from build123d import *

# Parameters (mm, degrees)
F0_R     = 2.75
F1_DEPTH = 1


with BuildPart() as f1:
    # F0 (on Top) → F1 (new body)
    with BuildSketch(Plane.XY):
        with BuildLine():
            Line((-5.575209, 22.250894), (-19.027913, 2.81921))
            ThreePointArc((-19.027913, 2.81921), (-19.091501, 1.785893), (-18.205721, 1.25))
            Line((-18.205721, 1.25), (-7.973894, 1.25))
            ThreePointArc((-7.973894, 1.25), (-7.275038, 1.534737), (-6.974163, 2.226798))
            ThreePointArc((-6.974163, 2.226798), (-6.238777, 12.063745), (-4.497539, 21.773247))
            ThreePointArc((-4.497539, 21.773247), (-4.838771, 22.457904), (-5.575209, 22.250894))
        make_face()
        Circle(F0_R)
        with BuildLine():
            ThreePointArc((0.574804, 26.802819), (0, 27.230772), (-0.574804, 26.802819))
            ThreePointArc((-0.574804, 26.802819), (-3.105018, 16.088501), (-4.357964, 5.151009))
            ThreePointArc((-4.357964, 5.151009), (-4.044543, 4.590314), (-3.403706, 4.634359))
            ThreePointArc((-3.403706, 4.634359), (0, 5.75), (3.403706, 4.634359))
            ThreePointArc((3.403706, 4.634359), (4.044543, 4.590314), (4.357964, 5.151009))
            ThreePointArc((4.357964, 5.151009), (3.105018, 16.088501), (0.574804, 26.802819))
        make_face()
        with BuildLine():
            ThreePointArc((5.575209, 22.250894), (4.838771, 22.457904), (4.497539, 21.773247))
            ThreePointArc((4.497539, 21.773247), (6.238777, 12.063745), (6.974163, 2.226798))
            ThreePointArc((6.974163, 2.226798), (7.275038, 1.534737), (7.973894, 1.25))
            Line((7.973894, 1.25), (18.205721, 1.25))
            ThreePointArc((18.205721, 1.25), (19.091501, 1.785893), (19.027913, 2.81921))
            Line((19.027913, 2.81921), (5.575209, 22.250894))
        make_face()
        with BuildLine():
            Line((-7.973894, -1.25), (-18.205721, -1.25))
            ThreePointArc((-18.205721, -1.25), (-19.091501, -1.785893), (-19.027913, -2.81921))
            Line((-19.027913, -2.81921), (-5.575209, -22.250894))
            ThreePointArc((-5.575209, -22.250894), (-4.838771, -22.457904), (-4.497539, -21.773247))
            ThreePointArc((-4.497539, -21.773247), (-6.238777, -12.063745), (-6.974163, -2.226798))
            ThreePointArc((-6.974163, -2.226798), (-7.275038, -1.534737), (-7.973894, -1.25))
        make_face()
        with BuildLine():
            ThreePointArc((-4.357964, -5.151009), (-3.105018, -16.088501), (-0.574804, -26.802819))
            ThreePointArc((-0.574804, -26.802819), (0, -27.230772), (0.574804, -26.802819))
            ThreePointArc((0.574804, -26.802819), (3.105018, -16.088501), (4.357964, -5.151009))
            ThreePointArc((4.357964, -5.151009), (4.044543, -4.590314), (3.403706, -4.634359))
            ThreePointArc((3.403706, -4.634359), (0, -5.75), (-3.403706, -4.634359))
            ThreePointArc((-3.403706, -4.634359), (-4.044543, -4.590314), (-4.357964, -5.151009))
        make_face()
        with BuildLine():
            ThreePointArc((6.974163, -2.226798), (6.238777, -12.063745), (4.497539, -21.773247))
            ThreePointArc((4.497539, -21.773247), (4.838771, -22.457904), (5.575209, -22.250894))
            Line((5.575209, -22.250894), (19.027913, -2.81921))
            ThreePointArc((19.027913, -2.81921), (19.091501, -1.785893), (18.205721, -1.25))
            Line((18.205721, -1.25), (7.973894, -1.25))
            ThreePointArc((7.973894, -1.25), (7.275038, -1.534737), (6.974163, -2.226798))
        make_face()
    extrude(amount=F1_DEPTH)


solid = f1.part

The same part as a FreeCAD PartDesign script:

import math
import FreeCAD as App
import Part
import Sketcher

V = App.Vector

doc = App.newDocument("Part")
params = doc.addObject("Spreadsheet::Sheet", "Params")
for row, (alias, value) in enumerate([
    ("sketch1_radius", "0.999999 mm"),
    ("sketch1_radius2", "0.999999 mm"),
    ("sketch1_radius3", "0.999999 mm"),
    ("sketch1_radius4", "0.999999 mm"),
    ("sketch1_radius5", "0.999999 mm"),
    ("pad1_length", "1 mm"),
], start=1):
    params.set(f"A{row}", alias)
    params.set(f"B{row}", "=" + value)
    params.setAlias(f"B{row}", alias)

body = doc.addObject("PartDesign::Body", "Body")
body.AllowCompound = True

sketch1 = body.newObject("Sketcher::SketchObject", "Sketch")
sketch1.AttachmentSupport = (doc.getObject("XY_Plane"), [""])
sketch1.MapMode = "FlatFace"
sketch1.addGeometry(Part.LineSegment(V(-5.575209, 22.250894, 0), V(-19.027913, 2.81921, 0)), False)
sketch1.addGeometry(Part.ArcOfCircle(Part.Circle(V(-18.205722, 2.249999, 0), V(0, 0, 1), 0.999999), math.radians(145.304758), math.radians(270.000076)), False)
sketch1.addGeometry(Part.LineSegment(V(-18.205721, 1.25, 0), V(-7.973894, 1.25, 0)), False)
sketch1.addGeometry(Part.ArcOfCircle(Part.Circle(V(-7.973893, 2.249999, 0), V(0, 0, 1), 0.999999), math.radians(-90.000053), math.radians(-1.329455)), False)
sketch1.addGeometry(Part.ArcOfCircle(Part.Circle(V(88.972908, -0.000008, 0), V(0, 0, 1), 95.972908), math.radians(166.887207), math.radians(178.670479)), False)
sketch1.addGeometry(Part.ArcOfCircle(Part.Circle(V(-5.081894, 21.909369, 0), V(0, 0, 1), 0.6), math.radians(-13.112854), math.radians(145.304909)), False)
sketch1.addGeometry(Part.Circle(V(0, 0, 0), V(0, 0, 1), 2.75), False)
sketch1.addGeometry(Part.ArcOfCircle(Part.Circle(V(0, 26.630772, 0), V(0, 0, 1), 0.6), math.radians(16.663168), math.radians(163.336832)), False)
sketch1.addGeometry(Part.ArcOfCircle(Part.Circle(V(88.972811, 0, 0), V(0, 0, 1), 93.472811), math.radians(163.336843), math.radians(176.841)), False)
sketch1.addGeometry(Part.ArcOfCircle(Part.Circle(V(-3.758875, 5.117945, 0), V(0, 0, 1), 0.600001), math.radians(176.841028), math.radians(306.295376)), False)
sketch1.addGeometry(Part.ArcOfCircle(Part.Circle(V(0, 0.000001, 0), V(0, 0, 1), 5.749999), math.radians(53.704565), math.radians(126.295435)), False)
sketch1.addGeometry(Part.ArcOfCircle(Part.Circle(V(3.758875, 5.117945, 0), V(0, 0, 1), 0.600001), math.radians(-126.295376), math.radians(3.158972)), False)
sketch1.addGeometry(Part.ArcOfCircle(Part.Circle(V(-88.972811, 0, 0), V(0, 0, 1), 93.472811), math.radians(3.159), math.radians(16.663157)), False)
sketch1.addGeometry(Part.ArcOfCircle(Part.Circle(V(5.081894, 21.909369, 0), V(0, 0, 1), 0.6), math.radians(34.695091), math.radians(193.112854)), False)
sketch1.addGeometry(Part.ArcOfCircle(Part.Circle(V(-88.972908, -0.000008, 0), V(0, 0, 1), 95.972908), math.radians(1.329521), math.radians(13.112793)), False)
sketch1.addGeometry(Part.ArcOfCircle(Part.Circle(V(7.973893, 2.249999, 0), V(0, 0, 1), 0.999999), math.radians(-178.670545), math.radians(-89.999947)), False)
sketch1.addGeometry(Part.LineSegment(V(7.973894, 1.25, 0), V(18.205721, 1.25, 0)), False)
sketch1.addGeometry(Part.ArcOfCircle(Part.Circle(V(18.205722, 2.249999, 0), V(0, 0, 1), 0.999999), math.radians(-90.000076), math.radians(34.695242)), False)
sketch1.addGeometry(Part.LineSegment(V(19.027913, 2.81921, 0), V(5.575209, 22.250894, 0)), False)
sketch1.addGeometry(Part.LineSegment(V(-7.973894, -1.25, 0), V(-18.205721, -1.25, 0)), False)
sketch1.addGeometry(Part.ArcOfCircle(Part.Circle(V(-18.205722, -2.249999, 0), V(0, 0, 1), 0.999999), math.radians(89.999924), math.radians(214.695242)), False)
sketch1.addGeometry(Part.LineSegment(V(-19.027913, -2.81921, 0), V(-5.575209, -22.250894, 0)), False)
sketch1.addGeometry(Part.ArcOfCircle(Part.Circle(V(-5.081894, -21.909369, 0), V(0, 0, 1), 0.6), math.radians(-145.304909), math.radians(13.112854)), False)
sketch1.addGeometry(Part.ArcOfCircle(Part.Circle(V(88.972908, 0.000008, 0), V(0, 0, 1), 95.972908), math.radians(-178.670479), math.radians(-166.887207)), False)
sketch1.addGeometry(Part.ArcOfCircle(Part.Circle(V(-7.973893, -2.249999, 0), V(0, 0, 1), 0.999999), math.radians(1.329455), math.radians(90.000053)), False)
sketch1.addGeometry(Part.ArcOfCircle(Part.Circle(V(88.972811, 0, 0), V(0, 0, 1), 93.472811), math.radians(-176.841), math.radians(-163.336843)), False)
sketch1.addGeometry(Part.ArcOfCircle(Part.Circle(V(0, -26.630772, 0), V(0, 0, 1), 0.6), math.radians(-163.336832), math.radians(-16.663168)), False)
sketch1.addGeometry(Part.ArcOfCircle(Part.Circle(V(-88.972811, 0, 0), V(0, 0, 1), 93.472811), math.radians(-16.663157), math.radians(-3.159)), False)
sketch1.addGeometry(Part.ArcOfCircle(Part.Circle(V(3.758875, -5.117945, 0), V(0, 0, 1), 0.600001), math.radians(-3.158972), math.radians(126.295376)), False)
sketch1.addGeometry(Part.ArcOfCircle(Part.Circle(V(0, -0.000001, 0), V(0, 0, 1), 5.749999), math.radians(-126.295435), math.radians(-53.704565)), False)
sketch1.addGeometry(Part.ArcOfCircle(Part.Circle(V(-3.758875, -5.117945, 0), V(0, 0, 1), 0.600001), math.radians(53.704624), math.radians(183.158972)), False)
sketch1.addGeometry(Part.ArcOfCircle(Part.Circle(V(-88.972908, 0.000008, 0), V(0, 0, 1), 95.972908), math.radians(-13.112793), math.radians(-1.329521)), False)
sketch1.addGeometry(Part.ArcOfCircle(Part.Circle(V(5.081894, -21.909369, 0), V(0, 0, 1), 0.6), math.radians(166.887146), math.radians(325.304909)), False)
sketch1.addGeometry(Part.LineSegment(V(5.575209, -22.250894, 0), V(19.027913, -2.81921, 0)), False)
sketch1.addGeometry(Part.ArcOfCircle(Part.Circle(V(18.205722, -2.249999, 0), V(0, 0, 1), 0.999999), math.radians(-34.695242), math.radians(90.000076)), False)
sketch1.addGeometry(Part.LineSegment(V(18.205721, -1.25, 0), V(7.973894, -1.25, 0)), False)
sketch1.addGeometry(Part.ArcOfCircle(Part.Circle(V(7.973893, -2.249999, 0), V(0, 0, 1), 0.999999), math.radians(89.999947), math.radians(178.670545)), False)
sketch1.addConstraint(Sketcher.Constraint("Coincident", 0, 2, 1, 1))
sketch1.addConstraint(Sketcher.Constraint("Coincident", 1, 2, 2, 1))
sketch1.addConstraint(Sketcher.Constraint("Coincident", 2, 2, 3, 1))
sketch1.addConstraint(Sketcher.Constraint("Coincident", 3, 2, 4, 2))
sketch1.addConstraint(Sketcher.Constraint("Coincident", 4, 1, 5, 1))
sketch1.addConstraint(Sketcher.Constraint("Coincident", 5, 2, 0, 1))
sketch1.addConstraint(Sketcher.Constraint("Coincident", 7, 2, 8, 1))
sketch1.addConstraint(Sketcher.Constraint("Coincident", 8, 2, 9, 1))
sketch1.addConstraint(Sketcher.Constraint("Coincident", 9, 2, 10, 2))
sketch1.addConstraint(Sketcher.Constraint("Coincident", 10, 1, 11, 1))
sketch1.addConstraint(Sketcher.Constraint("Coincident", 11, 2, 12, 1))
sketch1.addConstraint(Sketcher.Constraint("Coincident", 12, 2, 7, 1))
sketch1.addConstraint(Sketcher.Constraint("Coincident", 13, 2, 14, 2))
sketch1.addConstraint(Sketcher.Constraint("Coincident", 14, 1, 15, 1))
sketch1.addConstraint(Sketcher.Constraint("Coincident", 15, 2, 16, 1))
sketch1.addConstraint(Sketcher.Constraint("Coincident", 16, 2, 17, 1))
sketch1.addConstraint(Sketcher.Constraint("Coincident", 17, 2, 18, 1))
sketch1.addConstraint(Sketcher.Constraint("Coincident", 18, 2, 13, 1))
sketch1.addConstraint(Sketcher.Constraint("Coincident", 19, 2, 20, 1))
sketch1.addConstraint(Sketcher.Constraint("Coincident", 20, 2, 21, 1))
sketch1.addConstraint(Sketcher.Constraint("Coincident", 21, 2, 22, 1))
sketch1.addConstraint(Sketcher.Constraint("Coincident", 22, 2, 23, 2))
sketch1.addConstraint(Sketcher.Constraint("Coincident", 23, 1, 24, 1))
sketch1.addConstraint(Sketcher.Constraint("Coincident", 24, 2, 19, 1))
sketch1.addConstraint(Sketcher.Constraint("Coincident", 25, 2, 26, 1))
sketch1.addConstraint(Sketcher.Constraint("Coincident", 26, 2, 27, 1))
sketch1.addConstraint(Sketcher.Constraint("Coincident", 27, 2, 28, 1))
sketch1.addConstraint(Sketcher.Constraint("Coincident", 28, 2, 29, 2))
sketch1.addConstraint(Sketcher.Constraint("Coincident", 29, 1, 30, 1))
sketch1.addConstraint(Sketcher.Constraint("Coincident", 30, 2, 25, 1))
sketch1.addConstraint(Sketcher.Constraint("Coincident", 31, 1, 32, 1))
sketch1.addConstraint(Sketcher.Constraint("Coincident", 32, 2, 33, 1))
sketch1.addConstraint(Sketcher.Constraint("Coincident", 33, 2, 34, 1))
sketch1.addConstraint(Sketcher.Constraint("Coincident", 34, 2, 35, 1))
sketch1.addConstraint(Sketcher.Constraint("Coincident", 35, 2, 36, 1))
sketch1.addConstraint(Sketcher.Constraint("Coincident", 36, 2, 31, 2))
sketch1.addConstraint(Sketcher.Constraint("Horizontal", 2))
sketch1.addConstraint(Sketcher.Constraint("Horizontal", 16))
sketch1.addConstraint(Sketcher.Constraint("Horizontal", 19))
sketch1.addConstraint(Sketcher.Constraint("Horizontal", 35))
sketch1.addConstraint(Sketcher.Constraint("Coincident", 6, 3, -1, 1))
sketch1.addConstraint(Sketcher.Constraint("Coincident", 10, 3, -1, 1))
sketch1.addConstraint(Sketcher.Constraint("Coincident", 29, 3, -1, 1))
sketch1.addConstraint(Sketcher.Constraint("Coincident", 25, 3, 8, 3))
sketch1.addConstraint(Sketcher.Constraint("Coincident", 27, 3, 12, 3))
sketch1.addConstraint(Sketcher.Constraint("PointOnObject", 7, 3, -2))
sketch1.addConstraint(Sketcher.Constraint("PointOnObject", 8, 3, -1))
sketch1.addConstraint(Sketcher.Constraint("PointOnObject", 12, 3, -1))
sketch1.addConstraint(Sketcher.Constraint("PointOnObject", 26, 3, -2))
sketch1.addConstraint(Sketcher.Constraint("Radius", 1, 0.999999))
sketch1.addConstraint(Sketcher.Constraint("Radius", 3, 0.999999))
sketch1.addConstraint(Sketcher.Constraint("Radius", 15, 0.999999))
sketch1.addConstraint(Sketcher.Constraint("Radius", 17, 0.999999))
sketch1.addConstraint(Sketcher.Constraint("Radius", 20, 0.999999))
sketch1.addConstraint(Sketcher.Constraint("Radius", 24, 0.999999))
sketch1.addConstraint(Sketcher.Constraint("Radius", 34, 0.999999))
sketch1.addConstraint(Sketcher.Constraint("Radius", 36, 0.999999))
sketch1.addConstraint(Sketcher.Constraint("Diameter", 6, 5.5))
sketch1.addConstraint(Sketcher.Constraint("Radius", 5, 0.6))
sketch1.addConstraint(Sketcher.Constraint("Radius", 7, 0.6))
sketch1.addConstraint(Sketcher.Constraint("Radius", 9, 0.600001))
sketch1.addConstraint(Sketcher.Constraint("Radius", 11, 0.600001))
sketch1.addConstraint(Sketcher.Constraint("Radius", 13, 0.6))
sketch1.addConstraint(Sketcher.Constraint("Radius", 22, 0.6))
sketch1.addConstraint(Sketcher.Constraint("Radius", 26, 0.6))
sketch1.addConstraint(Sketcher.Constraint("Radius", 28, 0.600001))
sketch1.addConstraint(Sketcher.Constraint("Radius", 30, 0.600001))
sketch1.addConstraint(Sketcher.Constraint("Radius", 32, 0.6))
sketch1.addConstraint(Sketcher.Constraint("Radius", 10, 5.749999))
sketch1.addConstraint(Sketcher.Constraint("Radius", 29, 5.749999))
sketch1.addConstraint(Sketcher.Constraint("DistanceY", -1, 1, 1, 3, 2.249999))
sketch1.addConstraint(Sketcher.Constraint("DistanceY", -1, 1, 15, 3, 2.249999))
sketch1.addConstraint(Sketcher.Constraint("DistanceY", 20, 3, -1, 1, 2.249999))
sketch1.addConstraint(Sketcher.Constraint("DistanceY", 34, 3, -1, 1, 2.249999))
sketch1.addConstraint(Sketcher.Constraint("Radius", 4, 95.972908))
sketch1.addConstraint(Sketcher.Constraint("Radius", 8, 93.472811))
sketch1.addConstraint(Sketcher.Constraint("Radius", 12, 93.472811))
sketch1.addConstraint(Sketcher.Constraint("Radius", 14, 95.972908))
sketch1.addConstraint(Sketcher.Constraint("Radius", 23, 95.972908))
sketch1.addConstraint(Sketcher.Constraint("Radius", 25, 93.472811))
sketch1.addConstraint(Sketcher.Constraint("Radius", 31, 95.972908))
sketch1.addConstraint(Sketcher.Constraint("DistanceX", 2, 1, 2, 2, 10.231827))
sketch1.addConstraint(Sketcher.Constraint("DistanceX", 16, 1, 16, 2, 10.231827))
sketch1.addConstraint(Sketcher.Constraint("DistanceX", 19, 2, 19, 1, 10.231827))
sketch1.addConstraint(Sketcher.Constraint("DistanceX", 35, 2, 35, 1, 10.231827))
sketch1.addConstraint(Sketcher.Constraint("DistanceX", -1, 1, 4, 3, 88.972908))
sketch1.addConstraint(Sketcher.Constraint("DistanceY", -1, 1, 5, 3, 21.909369))
sketch1.addConstraint(Sketcher.Constraint("DistanceX", -1, 1, 8, 3, 88.972811))
sketch1.addConstraint(Sketcher.Constraint("DistanceY", -1, 1, 13, 3, 21.909369))
sketch1.addConstraint(Sketcher.Constraint("DistanceX", 14, 3, -1, 1, 88.972908))
sketch1.addConstraint(Sketcher.Constraint("DistanceY", 22, 3, -1, 1, 21.909369))
sketch1.addConstraint(Sketcher.Constraint("DistanceX", -1, 1, 23, 3, 88.972908))
sketch1.addConstraint(Sketcher.Constraint("DistanceX", 31, 3, -1, 1, 88.972908))
sketch1.addConstraint(Sketcher.Constraint("DistanceY", 32, 3, -1, 1, 21.909369))
sketch1.addConstraint(Sketcher.Constraint("DistanceY", -1, 1, 0, 2, 2.81921))
sketch1.addConstraint(Sketcher.Constraint("DistanceX", 1, 2, -1, 1, 18.205721))
sketch1.addConstraint(Sketcher.Constraint("DistanceX", 4, 1, -1, 1, 4.497539))
sketch1.addConstraint(Sketcher.Constraint("DistanceX", 5, 2, -1, 1, 5.575209))
sketch1.addConstraint(Sketcher.Constraint("DistanceY", -1, 1, 7, 2, 26.802819))
sketch1.addConstraint(Sketcher.Constraint("DistanceY", -1, 1, 8, 2, 5.151009))
sketch1.addConstraint(Sketcher.Constraint("DistanceY", -1, 1, 9, 2, 4.634359))
sketch1.addConstraint(Sketcher.Constraint("DistanceY", -1, 1, 10, 1, 4.634359))
sketch1.addConstraint(Sketcher.Constraint("DistanceY", -1, 1, 11, 2, 5.151009))
sketch1.addConstraint(Sketcher.Constraint("DistanceY", -1, 1, 12, 2, 26.802819))
sketch1.addConstraint(Sketcher.Constraint("DistanceX", -1, 1, 13, 2, 4.497539))
sketch1.addConstraint(Sketcher.Constraint("DistanceX", -1, 1, 16, 2, 18.205721))
sketch1.addConstraint(Sketcher.Constraint("DistanceY", -1, 1, 17, 2, 2.81921))
sketch1.addConstraint(Sketcher.Constraint("DistanceX", -1, 1, 18, 2, 5.575209))
sketch1.addConstraint(Sketcher.Constraint("DistanceX", 19, 2, -1, 1, 18.205721))
sketch1.addConstraint(Sketcher.Constraint("DistanceY", 20, 2, -1, 1, 2.81921))
sketch1.addConstraint(Sketcher.Constraint("DistanceX", 21, 2, -1, 1, 5.575209))
sketch1.addConstraint(Sketcher.Constraint("DistanceX", 22, 2, -1, 1, 4.497539))
sketch1.addConstraint(Sketcher.Constraint("DistanceY", 25, 2, -1, 1, 26.802819))
sketch1.addConstraint(Sketcher.Constraint("DistanceY", 26, 2, -1, 1, 26.802819))
sketch1.addConstraint(Sketcher.Constraint("DistanceY", 27, 2, -1, 1, 5.151009))
sketch1.addConstraint(Sketcher.Constraint("DistanceY", 28, 2, -1, 1, 4.634359))
sketch1.addConstraint(Sketcher.Constraint("DistanceY", 29, 1, -1, 1, 4.634359))
sketch1.addConstraint(Sketcher.Constraint("DistanceY", 30, 2, -1, 1, 5.151009))
sketch1.addConstraint(Sketcher.Constraint("DistanceX", -1, 1, 31, 1, 4.497539))
sketch1.addConstraint(Sketcher.Constraint("DistanceX", -1, 1, 32, 2, 5.575209))
sketch1.addConstraint(Sketcher.Constraint("DistanceY", 33, 2, -1, 1, 2.81921))
sketch1.addConstraint(Sketcher.Constraint("DistanceX", -1, 1, 34, 2, 18.205721))
sketch1.addConstraint(Sketcher.Constraint("Distance", 0, 23.633992))
sketch1.addConstraint(Sketcher.Constraint("Distance", 18, 23.633992))
sketch1.addConstraint(Sketcher.Constraint("Distance", 21, 23.633992))
sketch1.addConstraint(Sketcher.Constraint("Distance", 33, 23.633992))
sketch1.addConstraint(Sketcher.Constraint("DistanceX", 1, 3, -1, 1, 18.205722))
sketch1.addConstraint(Sketcher.Constraint("DistanceX", -1, 1, 13, 3, 5.081894))
sketch1.addConstraint(Sketcher.Constraint("DistanceX", 20, 3, -1, 1, 18.205722))
sketch1.addConstraint(Sketcher.Constraint("DistanceX", -1, 1, 32, 3, 5.081894))
sketch1.addConstraint(Sketcher.Constraint("DistanceX", 3, 2, -1, 1, 6.974163))
sketch1.addConstraint(Sketcher.Constraint("DistanceX", -1, 1, 14, 1, 6.974163))
sketch1.addConstraint(Sketcher.Constraint("DistanceX", 23, 1, -1, 1, 6.974163))
sketch1.addConstraint(Sketcher.Constraint("DistanceX", -1, 1, 36, 2, 6.974163))
sketch1.setExpression("Constraints[49]", "Params.sketch1_radius")
sketch1.setExpression("Constraints[50]", "Params.sketch1_radius2")
sketch1.setExpression("Constraints[51]", "Params.sketch1_radius3")
sketch1.setExpression("Constraints[52]", "Params.sketch1_radius4")
sketch1.setExpression("Constraints[53]", "Params.sketch1_radius5")
pad1 = body.newObject("PartDesign::Pad", "Pad")
pad1.Profile = sketch1
pad1.setExpression("Length", "Params.pad1_length")

doc.recompute()
